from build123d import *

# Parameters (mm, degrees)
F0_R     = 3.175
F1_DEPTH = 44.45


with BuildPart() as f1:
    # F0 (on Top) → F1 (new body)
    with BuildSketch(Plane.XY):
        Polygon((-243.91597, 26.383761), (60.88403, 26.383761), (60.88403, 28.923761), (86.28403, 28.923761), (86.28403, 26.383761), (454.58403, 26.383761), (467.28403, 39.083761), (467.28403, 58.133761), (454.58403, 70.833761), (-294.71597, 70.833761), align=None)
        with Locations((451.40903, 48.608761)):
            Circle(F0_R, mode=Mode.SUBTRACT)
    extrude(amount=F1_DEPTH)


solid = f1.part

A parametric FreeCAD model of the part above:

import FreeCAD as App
import Part
import Sketcher
from FreeCAD import Vector
Q = App.Units.Quantity


def add_polygon(sketch, points):
    """Adds a closed chain of lines whose ends are joined by coincident constraints."""
    first, n = sketch.GeometryCount, len(points)
    for a, b in zip(points, points[1:] + points[:1]):
        sketch.addGeometry(Part.LineSegment(App.Vector(*a, 0), App.Vector(*b, 0)), False)
    for i in range(n):
        sketch.addConstraint(Sketcher.Constraint("Coincident", first + i, 2, first + (i + 1) % n, 1))

doc = App.newDocument("Part")
body = doc.addObject("PartDesign::Body", "Body")

sketch1 = body.newObject("Sketcher::SketchObject", "Sketch")
sketch1.AttachmentSupport = (doc.getObject("XY_Plane"), [""])
sketch1.MapMode = "FlatFace"
add_polygon(sketch1, [(-243.91597, 26.383761), (60.88403, 26.383761), (60.88403, 28.923761), (86.28403, 28.923761), (86.28403, 26.383761), (454.58403, 26.383761), (467.28403, 39.083761), (467.28403, 58.133761), (454.58403, 70.833761), (-294.71597, 70.833761)])
sketch1.addGeometry(Part.Circle(Vector(451.40903, 48.608761, 0), Vector(0, 0, 1), 3.175), False)
sketch1.addConstraint(Sketcher.Constraint("Horizontal", 0))
sketch1.addConstraint(Sketcher.Constraint("Vertical", 1))
sketch1.addConstraint(Sketcher.Constraint("Horizontal", 2))
sketch1.addConstraint(Sketcher.Constraint("Vertical", 3))
sketch1.addConstraint(Sketcher.Constraint("Horizontal", 4))
sketch1.addConstraint(Sketcher.Constraint("Vertical", 6))
sketch1.addConstraint(Sketcher.Constraint("Horizontal", 8))
sketch1.addConstraint(Sketcher.Constraint("Perpendicular", 5, 7))
sketch1.addConstraint(Sketcher.Constraint("Horizontal", 0, 2, 3, 2))
sketch1.addConstraint(Sketcher.Constraint("Vertical", 4, 2, 7, 2))
sketch1.addConstraint(Sketcher.Constraint("Equal", 5, 7))
sketch1.addConstraint(Sketcher.Constraint("Diameter", 10, Q("0.25 in")))
sketch1.addConstraint(Sketcher.Constraint("DistanceX", 0, 1, 0, 2, Q("12 in")))
sketch1.addConstraint(Sketcher.Constraint("DistanceX", 2, 1, 2, 2, Q("1 in")))
sketch1.addConstraint(Sketcher.Constraint("DistanceX", 4, 1, 4, 2, Q("14.5 in")))
sketch1.addConstraint(Sketcher.Constraint("DistanceX", 8, 2, 8, 1, Q("29.5 in")))
sketch1.addConstraint(Sketcher.Constraint("DistanceY", 1, 1, 1, 2, Q("0.1 in")))
sketch1.addConstraint(Sketcher.Constraint("DistanceX", 2, 2, 5, 2, Q("15 in")))
sketch1.addConstraint(Sketcher.Constraint("DistanceY", 6, 1, 6, 2, Q("0.75 in")))
sketch1.addConstraint(Sketcher.Constraint("DistanceX", 0, 2, 10, 3, Q("15.375 in")))
sketch1.addConstraint(Sketcher.Constraint("DistanceY", 0, 2, 10, 3, Q("0.875 in")))
sketch1.addConstraint(Sketcher.Constraint("DistanceX", -1, 1, 10, 3, 451.40903))
sketch1.addConstraint(Sketcher.Constraint("DistanceY", -1, 1, 10, 3, 48.608761))
pad1 = body.newObject("PartDesign::Pad", "Pad")
pad1.Profile = sketch1
pad1.Length = Q("1.75 in")

doc.recompute()
